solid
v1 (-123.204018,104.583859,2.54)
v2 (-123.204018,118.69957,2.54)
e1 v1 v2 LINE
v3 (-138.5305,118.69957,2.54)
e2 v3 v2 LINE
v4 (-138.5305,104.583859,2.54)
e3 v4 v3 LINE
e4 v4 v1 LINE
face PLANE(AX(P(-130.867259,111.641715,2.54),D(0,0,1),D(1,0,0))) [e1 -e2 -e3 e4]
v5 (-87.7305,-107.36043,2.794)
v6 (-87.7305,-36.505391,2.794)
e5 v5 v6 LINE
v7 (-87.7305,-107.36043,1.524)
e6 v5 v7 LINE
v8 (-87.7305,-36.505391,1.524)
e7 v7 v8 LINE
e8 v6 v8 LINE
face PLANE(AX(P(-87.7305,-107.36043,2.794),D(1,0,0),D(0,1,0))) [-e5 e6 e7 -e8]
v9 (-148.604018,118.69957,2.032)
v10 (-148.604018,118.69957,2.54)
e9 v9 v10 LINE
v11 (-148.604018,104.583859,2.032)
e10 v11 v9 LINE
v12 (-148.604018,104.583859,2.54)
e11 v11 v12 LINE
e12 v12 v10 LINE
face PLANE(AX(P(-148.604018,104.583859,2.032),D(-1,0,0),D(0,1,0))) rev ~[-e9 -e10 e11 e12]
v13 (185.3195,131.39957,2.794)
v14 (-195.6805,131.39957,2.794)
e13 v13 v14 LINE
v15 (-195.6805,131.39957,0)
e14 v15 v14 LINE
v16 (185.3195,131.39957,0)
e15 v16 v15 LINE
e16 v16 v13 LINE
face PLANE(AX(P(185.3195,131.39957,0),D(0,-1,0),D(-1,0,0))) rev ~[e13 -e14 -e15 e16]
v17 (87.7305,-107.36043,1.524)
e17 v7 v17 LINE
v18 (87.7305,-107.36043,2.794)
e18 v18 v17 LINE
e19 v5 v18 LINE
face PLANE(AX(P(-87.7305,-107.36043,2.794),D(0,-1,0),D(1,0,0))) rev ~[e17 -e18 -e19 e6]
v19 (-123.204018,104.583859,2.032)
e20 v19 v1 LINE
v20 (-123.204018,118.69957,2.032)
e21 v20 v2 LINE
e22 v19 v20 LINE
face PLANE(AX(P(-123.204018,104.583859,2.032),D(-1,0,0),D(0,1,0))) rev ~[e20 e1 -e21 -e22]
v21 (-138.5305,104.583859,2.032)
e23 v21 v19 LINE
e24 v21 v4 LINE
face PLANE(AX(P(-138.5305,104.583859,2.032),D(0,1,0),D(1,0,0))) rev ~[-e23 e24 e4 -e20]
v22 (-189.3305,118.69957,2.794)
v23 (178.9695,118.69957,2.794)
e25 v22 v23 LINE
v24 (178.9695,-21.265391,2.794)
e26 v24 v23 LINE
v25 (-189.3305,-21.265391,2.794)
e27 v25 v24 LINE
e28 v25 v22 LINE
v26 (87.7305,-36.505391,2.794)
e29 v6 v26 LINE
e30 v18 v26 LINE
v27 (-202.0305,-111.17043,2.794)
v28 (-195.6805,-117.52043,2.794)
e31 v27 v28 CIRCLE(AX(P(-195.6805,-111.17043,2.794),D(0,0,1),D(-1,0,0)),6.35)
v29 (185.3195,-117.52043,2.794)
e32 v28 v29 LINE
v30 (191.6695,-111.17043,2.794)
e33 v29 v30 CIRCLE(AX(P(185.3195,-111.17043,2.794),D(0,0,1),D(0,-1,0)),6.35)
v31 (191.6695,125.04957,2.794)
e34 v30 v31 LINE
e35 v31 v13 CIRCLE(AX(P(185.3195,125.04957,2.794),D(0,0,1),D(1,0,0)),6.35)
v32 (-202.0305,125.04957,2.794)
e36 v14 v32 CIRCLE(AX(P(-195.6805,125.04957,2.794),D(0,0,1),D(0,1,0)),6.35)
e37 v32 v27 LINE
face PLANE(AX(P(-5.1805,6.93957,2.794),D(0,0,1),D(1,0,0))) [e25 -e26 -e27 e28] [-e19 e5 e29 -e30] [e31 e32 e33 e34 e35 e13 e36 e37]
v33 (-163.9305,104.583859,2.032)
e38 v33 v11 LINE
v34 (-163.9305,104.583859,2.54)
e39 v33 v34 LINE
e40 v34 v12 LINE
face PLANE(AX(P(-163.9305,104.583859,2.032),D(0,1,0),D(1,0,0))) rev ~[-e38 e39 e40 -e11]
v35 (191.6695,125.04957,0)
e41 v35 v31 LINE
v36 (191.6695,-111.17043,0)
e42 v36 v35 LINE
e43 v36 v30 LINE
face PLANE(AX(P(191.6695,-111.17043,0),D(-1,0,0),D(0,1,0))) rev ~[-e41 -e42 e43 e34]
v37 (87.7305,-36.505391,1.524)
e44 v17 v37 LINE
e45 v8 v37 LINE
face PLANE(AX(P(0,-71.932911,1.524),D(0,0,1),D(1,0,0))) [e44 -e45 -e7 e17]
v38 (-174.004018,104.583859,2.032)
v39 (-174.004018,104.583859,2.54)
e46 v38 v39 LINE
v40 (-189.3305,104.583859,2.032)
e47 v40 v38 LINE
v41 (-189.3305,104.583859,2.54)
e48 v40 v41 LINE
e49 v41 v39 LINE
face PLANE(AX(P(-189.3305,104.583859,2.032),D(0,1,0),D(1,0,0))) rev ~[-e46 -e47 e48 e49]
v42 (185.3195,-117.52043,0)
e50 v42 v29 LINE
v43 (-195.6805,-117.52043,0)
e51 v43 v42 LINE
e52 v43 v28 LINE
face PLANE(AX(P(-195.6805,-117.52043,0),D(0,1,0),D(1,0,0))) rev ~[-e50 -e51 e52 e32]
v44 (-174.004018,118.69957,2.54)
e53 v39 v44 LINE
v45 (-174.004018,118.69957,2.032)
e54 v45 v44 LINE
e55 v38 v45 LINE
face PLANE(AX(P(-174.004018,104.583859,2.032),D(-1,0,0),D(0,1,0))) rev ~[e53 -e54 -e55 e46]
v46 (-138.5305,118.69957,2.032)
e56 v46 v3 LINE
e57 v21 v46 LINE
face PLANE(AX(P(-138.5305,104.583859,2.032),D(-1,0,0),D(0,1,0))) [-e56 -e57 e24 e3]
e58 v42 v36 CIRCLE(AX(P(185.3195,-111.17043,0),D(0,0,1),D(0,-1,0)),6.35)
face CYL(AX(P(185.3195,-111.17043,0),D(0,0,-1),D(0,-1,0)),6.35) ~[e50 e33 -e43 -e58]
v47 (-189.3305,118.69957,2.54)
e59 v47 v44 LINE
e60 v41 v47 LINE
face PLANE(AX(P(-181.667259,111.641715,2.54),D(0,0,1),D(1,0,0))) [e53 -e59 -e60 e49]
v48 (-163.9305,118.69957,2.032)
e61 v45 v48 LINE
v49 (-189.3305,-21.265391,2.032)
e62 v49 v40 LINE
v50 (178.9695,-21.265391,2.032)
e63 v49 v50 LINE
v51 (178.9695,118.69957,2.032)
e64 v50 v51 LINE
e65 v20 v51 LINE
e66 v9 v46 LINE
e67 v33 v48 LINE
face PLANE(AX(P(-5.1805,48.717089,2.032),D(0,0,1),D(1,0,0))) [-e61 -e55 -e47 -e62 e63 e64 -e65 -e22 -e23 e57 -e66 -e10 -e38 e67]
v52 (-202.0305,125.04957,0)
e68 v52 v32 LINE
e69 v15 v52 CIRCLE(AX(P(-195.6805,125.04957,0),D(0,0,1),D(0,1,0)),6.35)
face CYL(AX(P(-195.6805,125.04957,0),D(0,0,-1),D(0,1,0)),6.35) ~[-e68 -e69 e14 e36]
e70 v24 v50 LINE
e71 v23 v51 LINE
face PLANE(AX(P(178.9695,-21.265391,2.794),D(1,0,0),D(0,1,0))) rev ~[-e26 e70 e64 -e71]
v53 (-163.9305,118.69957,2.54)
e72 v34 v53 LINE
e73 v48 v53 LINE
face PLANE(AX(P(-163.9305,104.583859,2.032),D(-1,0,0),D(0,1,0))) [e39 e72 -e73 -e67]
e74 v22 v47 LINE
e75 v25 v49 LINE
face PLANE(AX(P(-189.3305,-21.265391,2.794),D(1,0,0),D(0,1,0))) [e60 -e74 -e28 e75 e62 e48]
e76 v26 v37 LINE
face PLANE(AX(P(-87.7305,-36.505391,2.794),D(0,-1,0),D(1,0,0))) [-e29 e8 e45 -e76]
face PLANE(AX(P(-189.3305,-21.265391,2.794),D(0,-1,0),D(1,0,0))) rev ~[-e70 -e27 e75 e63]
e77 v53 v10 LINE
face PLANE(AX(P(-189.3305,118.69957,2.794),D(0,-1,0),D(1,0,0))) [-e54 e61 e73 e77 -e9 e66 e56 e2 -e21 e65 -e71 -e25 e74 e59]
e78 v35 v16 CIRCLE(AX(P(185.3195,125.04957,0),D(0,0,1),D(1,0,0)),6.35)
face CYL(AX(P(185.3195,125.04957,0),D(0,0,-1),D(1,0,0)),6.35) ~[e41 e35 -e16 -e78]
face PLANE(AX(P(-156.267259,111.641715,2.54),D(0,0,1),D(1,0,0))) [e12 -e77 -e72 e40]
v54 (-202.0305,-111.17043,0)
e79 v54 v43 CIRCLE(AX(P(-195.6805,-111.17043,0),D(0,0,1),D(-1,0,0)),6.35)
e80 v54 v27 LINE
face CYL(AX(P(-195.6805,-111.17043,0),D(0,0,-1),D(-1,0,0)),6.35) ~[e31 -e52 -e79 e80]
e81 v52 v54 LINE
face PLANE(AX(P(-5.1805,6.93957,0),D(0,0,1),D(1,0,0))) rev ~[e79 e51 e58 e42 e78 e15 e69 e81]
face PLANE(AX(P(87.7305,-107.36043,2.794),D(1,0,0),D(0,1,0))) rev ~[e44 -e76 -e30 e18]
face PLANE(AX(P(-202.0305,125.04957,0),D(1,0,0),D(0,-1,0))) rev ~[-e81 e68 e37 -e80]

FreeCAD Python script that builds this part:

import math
import FreeCAD as App
import Part
import Sketcher
Q = App.Units.Quantity

doc = App.newDocument("Part")
body = doc.addObject("PartDesign::Body", "Body")

# Sketch on XY plane
sketch1 = doc.addObject("Sketcher::SketchObject", "Sketch")
body.addObject(sketch1)
sketch1.AttachmentSupport = (doc.XY_Plane, [""])
sketch1.MapMode = "FlatFace"
sketch1.addGeometry(Part.ArcOfCircle(Part.Circle(App.Vector(185, 125, 0), App.Vector(0, 0, 1), 6), math.radians(0), math.radians(90)), False)
sketch1.addGeometry(Part.LineSegment(App.Vector(185, 131, 0), App.Vector(-196, 131, 0)), False)
sketch1.addGeometry(Part.ArcOfCircle(Part.Circle(App.Vector(-196, 125, 0), App.Vector(0, 0, 1), 6), math.radians(90), math.radians(180)), False)
sketch1.addGeometry(Part.LineSegment(App.Vector(-202, 125, 0), App.Vector(-202, -111, 0)), False)
sketch1.addGeometry(Part.ArcOfCircle(Part.Circle(App.Vector(-196, -111, 0), App.Vector(0, 0, 1), 6), math.radians(180), math.radians(270)), False)
sketch1.addGeometry(Part.LineSegment(App.Vector(-196, -118, 0), App.Vector(185, -118, 0)), False)
sketch1.addGeometry(Part.ArcOfCircle(Part.Circle(App.Vector(185, -111, 0), App.Vector(0, 0, 1), 6), math.radians(-90), math.radians(0)), False)
sketch1.addGeometry(Part.LineSegment(App.Vector(192, -111, 0), App.Vector(192, 125, 0)), False)
sketch1.addConstraint(Sketcher.Constraint("Tangent", 0, 2, 1, 1))
sketch1.addConstraint(Sketcher.Constraint("Tangent", 1, 2, 2, 1))
sketch1.addConstraint(Sketcher.Constraint("Tangent", 2, 2, 3, 1))
sketch1.addConstraint(Sketcher.Constraint("Tangent", 3, 2, 4, 1))
sketch1.addConstraint(Sketcher.Constraint("Tangent", 4, 2, 5, 1))
sketch1.addConstraint(Sketcher.Constraint("Tangent", 5, 2, 6, 1))
sketch1.addConstraint(Sketcher.Constraint("Tangent", 6, 2, 7, 1))
sketch1.addConstraint(Sketcher.Constraint("Tangent", 7, 2, 0, 1))
sketch1.addConstraint(Sketcher.Constraint("Horizontal", 1))
sketch1.addConstraint(Sketcher.Constraint("Vertical", 3))
sketch1.addConstraint(Sketcher.Constraint("Horizontal", 5))
sketch1.addConstraint(Sketcher.Constraint("Vertical", 7))
sketch1.addConstraint(Sketcher.Constraint("Equal", 0, 2))
sketch1.addConstraint(Sketcher.Constraint("Equal", 2, 4))
sketch1.addConstraint(Sketcher.Constraint("Equal", 4, 6))
sketch1.addConstraint(Sketcher.Constraint("DistanceX", 1, 2, 1, 1, Q("15 in")))
sketch1.addConstraint(Sketcher.Constraint("Radius", 0, Q("0.25 in")))
sketch1.addConstraint(Sketcher.Constraint("DistanceY", 3, 2, 3, 1, Q("9.3 in")))
sketch1.addConstraint(Sketcher.Constraint("DistanceX", -1, 1, 0, 3, 185.3195))
sketch1.addConstraint(Sketcher.Constraint("DistanceY", -1, 1, 0, 3, 125.04957))
pad1 = doc.addObject("PartDesign::Pad", "Pad")
body.addObject(pad1)
pad1.Profile = sketch1
pad1.Length = Q("0.11 in")

# Sketch on XY plane
sketch2 = doc.addObject("Sketcher::SketchObject", "Sketch001")
body.addObject(sketch2)
sketch2.AttachmentSupport = (doc.XY_Plane, [""])
sketch2.MapMode = "FlatFace"
sketch2.AttachmentOffset = App.Placement(App.Vector(0, 0, 0.11 * 25.4), App.Rotation())
sketch2.addGeometry(Part.LineSegment(App.Vector(-189, 119, 0), App.Vector(-189, -21, 0)), False)
sketch2.addGeometry(Part.LineSegment(App.Vector(-189, -21, 0), App.Vector(179, -21, 0)), False)
sketch2.addGeometry(Part.LineSegment(App.Vector(179, -21, 0), App.Vector(179, 119, 0)), False)
sketch2.addGeometry(Part.LineSegment(App.Vector(179, 119, 0), App.Vector(-189, 119, 0)), False)
sketch2.addConstraint(Sketcher.Constraint("Coincident", 0, 2, 1, 1))
sketch2.addConstraint(Sketcher.Constraint("Coincident", 1, 2, 2, 1))
sketch2.addConstraint(Sketcher.Constraint("Coincident", 2, 2, 3, 1))
sketch2.addConstraint(Sketcher.Constraint("Coincident", 3, 2, 0, 1))
sketch2.addConstraint(Sketcher.Constraint("Vertical", 0))
sketch2.addConstraint(Sketcher.Constraint("Horizontal", 1))
sketch2.addConstraint(Sketcher.Constraint("Vertical", 2))
sketch2.addConstraint(Sketcher.Constraint("Horizontal", 3))
sketch2.addConstraint(Sketcher.Constraint("DistanceX", 1, 1, 1, 2, Q("14.5 in")))
sketch2.addConstraint(Sketcher.Constraint("DistanceY", 0, 2, 0, 1, 139.964961))
sketch2.addConstraint(Sketcher.Constraint("DistanceX", 0, 2, -1, 1, 189.3305))
sketch2.addConstraint(Sketcher.Constraint("DistanceY", 0, 2, -1, 1, 21.265391))
pocket1 = doc.addObject("PartDesign::Pocket", "Pocket")
body.addObject(pocket1)
pocket1.Profile = sketch2
pocket1.Length = Q("0.03 in")

# Sketch on XY plane
sketch3 = doc.addObject("Sketcher::SketchObject", "Sketch002")
body.addObject(sketch3)
sketch3.AttachmentSupport = (doc.XY_Plane, [""])
sketch3.MapMode = "FlatFace"
sketch3.AttachmentOffset = App.Placement(App.Vector(0, 0, 0.11 * 25.4), App.Rotation())
sketch3.addGeometry(Part.LineSegment(App.Vector(-88, -37, 0), App.Vector(-88, -107, 0)), False)
sketch3.addGeometry(Part.LineSegment(App.Vector(-88, -107, 0), App.Vector(88, -107, 0)), False)
sketch3.addGeometry(Part.LineSegment(App.Vector(88, -107, 0), App.Vector(88, -37, 0)), False)
sketch3.addGeometry(Part.LineSegment(App.Vector(88, -37, 0), App.Vector(-88, -37, 0)), False)
sketch3.addConstraint(Sketcher.Constraint("Coincident", 0, 2, 1, 1))
sketch3.addConstraint(Sketcher.Constraint("Coincident", 1, 2, 2, 1))
sketch3.addConstraint(Sketcher.Constraint("Coincident", 2, 2, 3, 1))
sketch3.addConstraint(Sketcher.Constraint("Coincident", 3, 2, 0, 1))
sketch3.addConstraint(Sketcher.Constraint("Vertical", 0))
sketch3.addConstraint(Sketcher.Constraint("Horizontal", 1))
sketch3.addConstraint(Sketcher.Constraint("Vertical", 2))
sketch3.addConstraint(Sketcher.Constraint("Horizontal", 3))
sketch3.addConstraint(Sketcher.Constraint("DistanceX", 1, 1, 1, 2, 175.461001))
sketch3.addConstraint(Sketcher.Constraint("DistanceY", 0, 2, 0, 1, 70.855039))
sketch3.addConstraint(Sketcher.Constraint("DistanceX", 0, 2, -1, 1, 87.7305))
sketch3.addConstraint(Sketcher.Constraint("DistanceY", 0, 2, -1, 1, 107.36043))
pocket2 = doc.addObject("PartDesign::Pocket", "Pocket001")
body.addObject(pocket2)
pocket2.Profile = sketch3
pocket2.Length = Q("0.05 in")

# Sketch on XY plane
sketch4 = doc.addObject("Sketcher::SketchObject", "Sketch003")
body.addObject(sketch4)
sketch4.AttachmentSupport = (doc.XY_Plane, [""])
sketch4.MapMode = "FlatFace"
sketch4.AttachmentOffset = App.Placement(App.Vector(0, 0, 0.08 * 25.4), App.Rotation())
sketch4.addGeometry(Part.LineSegment(App.Vector(-189, 119, 0), App.Vector(-189, 105, 0)), False)
sketch4.addGeometry(Part.LineSegment(App.Vector(-189, 105, 0), App.Vector(-174, 105, 0)), False)
sketch4.addGeometry(Part.LineSegment(App.Vector(-174, 105, 0), App.Vector(-174, 119, 0)), False)
sketch4.addGeometry(Part.LineSegment(App.Vector(-174, 119, 0), App.Vector(-189, 119, 0)), False)
sketch4.addGeometry(Part.LineSegment(App.Vector(-164, 119, 0), App.Vector(-164, 105, 0)), False)
sketch4.addGeometry(Part.LineSegment(App.Vector(-164, 105, 0), App.Vector(-149, 105, 0)), False)
sketch4.addGeometry(Part.LineSegment(App.Vector(-149, 105, 0), App.Vector(-149, 119, 0)), False)
sketch4.addGeometry(Part.LineSegment(App.Vector(-149, 119, 0), App.Vector(-164, 119, 0)), False)
sketch4.addGeometry(Part.LineSegment(App.Vector(-139, 119, 0), App.Vector(-139, 105, 0)), False)
sketch4.addGeometry(Part.LineSegment(App.Vector(-139, 105, 0), App.Vector(-123, 105, 0)), False)
sketch4.addGeometry(Part.LineSegment(App.Vector(-123, 105, 0), App.Vector(-123, 119, 0)), False)
sketch4.addGeometry(Part.LineSegment(App.Vector(-123, 119, 0), App.Vector(-139, 119, 0)), False)
sketch4.addConstraint(Sketcher.Constraint("Coincident", 0, 2, 1, 1))
sketch4.addConstraint(Sketcher.Constraint("Coincident", 1, 2, 2, 1))
sketch4.addConstraint(Sketcher.Constraint("Coincident", 2, 2, 3, 1))
sketch4.addConstraint(Sketcher.Constraint("Coincident", 3, 2, 0, 1))
sketch4.addConstraint(Sketcher.Constraint("Coincident", 4, 2, 5, 1))
sketch4.addConstraint(Sketcher.Constraint("Coincident", 5, 2, 6, 1))
sketch4.addConstraint(Sketcher.Constraint("Coincident", 6, 2, 7, 1))
sketch4.addConstraint(Sketcher.Constraint("Coincident", 7, 2, 4, 1))
sketch4.addConstraint(Sketcher.Constraint("Coincident", 8, 2, 9, 1))
sketch4.addConstraint(Sketcher.Constraint("Coincident", 9, 2, 10, 1))
sketch4.addConstraint(Sketcher.Constraint("Coincident", 10, 2, 11, 1))
sketch4.addConstraint(Sketcher.Constraint("Coincident", 11, 2, 8, 1))
sketch4.addConstraint(Sketcher.Constraint("Vertical", 0))
sketch4.addConstraint(Sketcher.Constraint("Horizontal", 1))
sketch4.addConstraint(Sketcher.Constraint("Vertical", 2))
sketch4.addConstraint(Sketcher.Constraint("Horizontal", 3))
sketch4.addConstraint(Sketcher.Constraint("Vertical", 4))
sketch4.addConstraint(Sketcher.Constraint("Horizontal", 5))
sketch4.addConstraint(Sketcher.Constraint("Vertical", 6))
sketch4.addConstraint(Sketcher.Constraint("Horizontal", 7))
sketch4.addConstraint(Sketcher.Constraint("Vertical", 8))
sketch4.addConstraint(Sketcher.Constraint("Horizontal", 9))
sketch4.addConstraint(Sketcher.Constraint("Vertical", 10))
sketch4.addConstraint(Sketcher.Constraint("Horizontal", 11))
sketch4.addConstraint(Sketcher.Constraint("Horizontal", 1, 2, 4, 2))
sketch4.addConstraint(Sketcher.Constraint("Horizontal", 3, 2, 6, 2))
sketch4.addConstraint(Sketcher.Constraint("Horizontal", 5, 2, 8, 2))
sketch4.addConstraint(Sketcher.Constraint("Horizontal", 7, 2, 10, 2))
sketch4.addConstraint(Sketcher.Constraint("Equal", 3, 5))
sketch4.addConstraint(Sketcher.Constraint("Equal", 7, 9))
sketch4.addConstraint(Sketcher.Constraint("DistanceX", 0, 2, 4, 2, Q("1 in")))
sketch4.addConstraint(Sketcher.Constraint("DistanceX", 4, 2, 8, 2, Q("1 in")))
sketch4.addConstraint(Sketcher.Constraint("DistanceY", 0, 2, 0, 1, 14.115711))
sketch4.addConstraint(Sketcher.Constraint("DistanceX", 0, 2, -1, 1, 189.3305))
sketch4.addConstraint(Sketcher.Constraint("DistanceX", 1, 1, 1, 2, 15.326482))
sketch4.addConstraint(Sketcher.Constraint("DistanceY", -1, 1, 0, 2, 104.583859))
pad2 = doc.addObject("PartDesign::Pad", "Pad001")
body.addObject(pad2)
pad2.Profile = sketch4
pad2.Length = Q("0.02 in")

doc.recompute()
